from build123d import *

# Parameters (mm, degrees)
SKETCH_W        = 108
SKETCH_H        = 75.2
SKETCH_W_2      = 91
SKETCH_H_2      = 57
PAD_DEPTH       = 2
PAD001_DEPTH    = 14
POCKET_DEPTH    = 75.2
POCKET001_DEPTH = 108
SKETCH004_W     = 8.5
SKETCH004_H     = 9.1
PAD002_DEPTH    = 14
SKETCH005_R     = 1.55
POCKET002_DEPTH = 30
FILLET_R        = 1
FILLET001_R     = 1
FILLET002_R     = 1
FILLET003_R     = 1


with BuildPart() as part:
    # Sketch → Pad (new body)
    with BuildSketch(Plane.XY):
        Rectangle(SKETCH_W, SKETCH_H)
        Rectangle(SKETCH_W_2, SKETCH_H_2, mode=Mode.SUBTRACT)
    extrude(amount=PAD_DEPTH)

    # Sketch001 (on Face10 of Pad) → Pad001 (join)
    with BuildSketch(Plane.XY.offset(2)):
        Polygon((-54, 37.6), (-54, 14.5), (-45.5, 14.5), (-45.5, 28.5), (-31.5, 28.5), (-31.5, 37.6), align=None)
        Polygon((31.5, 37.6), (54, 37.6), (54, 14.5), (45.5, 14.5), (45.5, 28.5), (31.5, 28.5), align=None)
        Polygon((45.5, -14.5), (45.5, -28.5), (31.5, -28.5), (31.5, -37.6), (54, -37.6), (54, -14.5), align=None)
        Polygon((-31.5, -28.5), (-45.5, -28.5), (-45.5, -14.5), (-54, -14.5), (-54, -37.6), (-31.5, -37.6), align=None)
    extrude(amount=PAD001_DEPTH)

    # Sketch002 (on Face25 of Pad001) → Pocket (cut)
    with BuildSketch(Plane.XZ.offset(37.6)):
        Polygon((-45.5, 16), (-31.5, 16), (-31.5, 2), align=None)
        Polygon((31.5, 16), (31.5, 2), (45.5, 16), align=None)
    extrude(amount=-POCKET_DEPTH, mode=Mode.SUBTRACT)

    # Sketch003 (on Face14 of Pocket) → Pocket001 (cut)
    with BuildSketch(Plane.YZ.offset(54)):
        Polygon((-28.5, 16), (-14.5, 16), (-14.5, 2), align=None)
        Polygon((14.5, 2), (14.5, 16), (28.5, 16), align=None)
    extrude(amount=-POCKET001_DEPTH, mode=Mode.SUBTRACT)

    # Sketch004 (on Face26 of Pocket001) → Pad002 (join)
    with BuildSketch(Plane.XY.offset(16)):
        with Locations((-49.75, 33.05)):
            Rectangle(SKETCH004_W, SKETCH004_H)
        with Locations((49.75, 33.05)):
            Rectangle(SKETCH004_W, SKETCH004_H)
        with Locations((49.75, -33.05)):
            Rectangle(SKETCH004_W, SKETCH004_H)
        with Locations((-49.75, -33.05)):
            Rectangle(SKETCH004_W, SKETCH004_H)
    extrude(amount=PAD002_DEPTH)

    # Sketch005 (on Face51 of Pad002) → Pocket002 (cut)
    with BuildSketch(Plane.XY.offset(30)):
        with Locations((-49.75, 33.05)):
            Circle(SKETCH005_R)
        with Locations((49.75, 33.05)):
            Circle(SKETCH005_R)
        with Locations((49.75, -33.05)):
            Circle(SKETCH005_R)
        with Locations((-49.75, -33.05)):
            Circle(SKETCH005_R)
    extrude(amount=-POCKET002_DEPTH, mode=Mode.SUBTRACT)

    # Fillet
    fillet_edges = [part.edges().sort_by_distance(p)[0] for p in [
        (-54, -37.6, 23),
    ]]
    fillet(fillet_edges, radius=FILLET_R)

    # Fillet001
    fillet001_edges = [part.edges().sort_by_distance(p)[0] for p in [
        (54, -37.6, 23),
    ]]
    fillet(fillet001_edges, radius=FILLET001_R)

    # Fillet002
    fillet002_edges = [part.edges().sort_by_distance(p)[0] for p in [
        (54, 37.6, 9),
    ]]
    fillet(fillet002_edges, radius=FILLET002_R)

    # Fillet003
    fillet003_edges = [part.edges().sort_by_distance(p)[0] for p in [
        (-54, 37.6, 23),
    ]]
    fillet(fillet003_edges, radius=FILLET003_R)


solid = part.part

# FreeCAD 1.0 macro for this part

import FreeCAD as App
import Part
import Sketcher


def edges_at(feature, points):
    """Names of the edges that pass closest to the given points."""
    edges = feature.Shape.Edges
    near = lambda p: min(range(len(edges)), key=lambda i: edges[i].distToShape(Part.Vertex(*p))[0])
    return sorted({f"Edge{near(p) + 1}" for p in points})

doc = App.newDocument("Part")
body = doc.addObject("PartDesign::Body", "Body")

# Sketch on XY plane
sketch1 = body.newObject("Sketcher::SketchObject", "Sketch")
sketch1.AttachmentSupport = (doc.getObject("XY_Plane"), [""])
sketch1.MapMode = "FlatFace"
sketch1.addGeometry([
    Part.LineSegment(App.Vector(-54, 38, 0), App.Vector(-54, -38, 0)),  # 0
    Part.LineSegment(App.Vector(-54, -38, 0), App.Vector(54, -38, 0)),  # 1
    Part.LineSegment(App.Vector(54, -38, 0), App.Vector(54, 38, 0)),  # 2
    Part.LineSegment(App.Vector(54, 38, 0), App.Vector(-54, 38, 0)),  # 3
    Part.LineSegment(App.Vector(46, -28, 0), App.Vector(-46, -28, 0)),  # 4
    Part.LineSegment(App.Vector(-46, -28, 0), App.Vector(-46, 28, 0)),  # 5
    Part.LineSegment(App.Vector(-46, 28, 0), App.Vector(46, 28, 0)),  # 6
    Part.LineSegment(App.Vector(46, 28, 0), App.Vector(46, -28, 0)),  # 7
], False)
sketch1.addConstraint([
    Sketcher.Constraint("Coincident", 0, 2, 1, 1),
    Sketcher.Constraint("Coincident", 1, 2, 2, 1),
    Sketcher.Constraint("Coincident", 2, 2, 3, 1),
    Sketcher.Constraint("Coincident", 3, 2, 0, 1),
    Sketcher.Constraint("Coincident", 4, 2, 5, 1),
    Sketcher.Constraint("Coincident", 5, 2, 6, 1),
    Sketcher.Constraint("Coincident", 6, 2, 7, 1),
    Sketcher.Constraint("Coincident", 7, 2, 4, 1),
    Sketcher.Constraint("Vertical", 0),
    Sketcher.Constraint("Horizontal", 1),
    Sketcher.Constraint("Vertical", 2),
    Sketcher.Constraint("Horizontal", 3),
    Sketcher.Constraint("Horizontal", 4),
    Sketcher.Constraint("Vertical", 5),
    Sketcher.Constraint("Horizontal", 6),
    Sketcher.Constraint("Vertical", 7),
    Sketcher.Constraint("Symmetric", 0, 2, 2, 2, -1, 1),
    Sketcher.Constraint("Symmetric", 4, 2, 6, 2, -1, 1),
    Sketcher.Constraint("DistanceX", 1, 1, 1, 2, 108.0),
    Sketcher.Constraint("DistanceX", 4, 2, 4, 1, 91.0),
    Sketcher.Constraint("DistanceY", 5, 1, 5, 2, 57.0),
    Sketcher.Constraint("DistanceY", 0, 2, 0, 1, 75.2),
])
pad1 = body.newObject("PartDesign::Pad", "Pad")
pad1.Profile = sketch1
pad1.Length = 2

# Sketch on XY plane
sketch2 = body.newObject("Sketcher::SketchObject", "Sketch001")
sketch2.AttachmentSupport = (doc.getObject("XY_Plane"), [""])
sketch2.MapMode = "FlatFace"
sketch2.AttachmentOffset = App.Placement(App.Vector(0, 0, 2), App.Rotation())
sketch2.addGeometry([
    Part.LineSegment(App.Vector(-54, 38, 0), App.Vector(-54, 14, 0)),  # 0
    Part.LineSegment(App.Vector(-54, 14, 0), App.Vector(-46, 14, 0)),  # 1
    Part.LineSegment(App.Vector(-46, 14, 0), App.Vector(-46, 28, 0)),  # 2
    Part.LineSegment(App.Vector(-46, 28, 0), App.Vector(-32, 28, 0)),  # 3
    Part.LineSegment(App.Vector(-32, 28, 0), App.Vector(-32, 38, 0)),  # 4
    Part.LineSegment(App.Vector(-32, 38, 0), App.Vector(-54, 38, 0)),  # 5
    Part.LineSegment(App.Vector(54, 38, 0), App.Vector(32, 38, 0)),  # 6
    Part.LineSegment(App.Vector(32, 38, 0), App.Vector(32, 28, 0)),  # 7
    Part.LineSegment(App.Vector(32, 28, 0), App.Vector(46, 28, 0)),  # 8
    Part.LineSegment(App.Vector(46, 28, 0), App.Vector(46, 14, 0)),  # 9
    Part.LineSegment(App.Vector(46, 14, 0), App.Vector(54, 14, 0)),  # 10
    Part.LineSegment(App.Vector(54, 14, 0), App.Vector(54, 38, 0)),  # 11
    Part.LineSegment(App.Vector(46, -14, 0), App.Vector(46, -28, 0)),  # 12
    Part.LineSegment(App.Vector(46, -28, 0), App.Vector(32, -28, 0)),  # 13
    Part.LineSegment(App.Vector(32, -28, 0), App.Vector(32, -38, 0)),  # 14
    Part.LineSegment(App.Vector(32, -38, 0), App.Vector(54, -38, 0)),  # 15
    Part.LineSegment(App.Vector(54, -38, 0), App.Vector(54, -14, 0)),  # 16
    Part.LineSegment(App.Vector(54, -14, 0), App.Vector(46, -14, 0)),  # 17
    Part.LineSegment(App.Vector(-32, -28, 0), App.Vector(-46, -28, 0)),  # 18
    Part.LineSegment(App.Vector(-46, -28, 0), App.Vector(-46, -14, 0)),  # 19
    Part.LineSegment(App.Vector(-46, -14, 0), App.Vector(-54, -14, 0)),  # 20
    Part.LineSegment(App.Vector(-54, -14, 0), App.Vector(-54, -38, 0)),  # 21
    Part.LineSegment(App.Vector(-54, -38, 0), App.Vector(-32, -38, 0)),  # 22
    Part.LineSegment(App.Vector(-32, -38, 0), App.Vector(-32, -28, 0)),  # 23
], False)
sketch2.addConstraint([
    Sketcher.Constraint("Coincident", 0, 2, 1, 1),
    Sketcher.Constraint("Coincident", 1, 2, 2, 1),
    Sketcher.Constraint("Coincident", 2, 2, 3, 1),
    Sketcher.Constraint("Coincident", 3, 2, 4, 1),
    Sketcher.Constraint("Coincident", 4, 2, 5, 1),
    Sketcher.Constraint("Coincident", 5, 2, 0, 1),
    Sketcher.Constraint("Coincident", 6, 2, 7, 1),
    Sketcher.Constraint("Coincident", 7, 2, 8, 1),
    Sketcher.Constraint("Coincident", 8, 2, 9, 1),
    Sketcher.Constraint("Coincident", 9, 2, 10, 1),
    Sketcher.Constraint("Coincident", 10, 2, 11, 1),
    Sketcher.Constraint("Coincident", 11, 2, 6, 1),
    Sketcher.Constraint("Coincident", 12, 2, 13, 1),
    Sketcher.Constraint("Coincident", 13, 2, 14, 1),
    Sketcher.Constraint("Coincident", 14, 2, 15, 1),
    Sketcher.Constraint("Coincident", 15, 2, 16, 1),
    Sketcher.Constraint("Coincident", 16, 2, 17, 1),
    Sketcher.Constraint("Coincident", 17, 2, 12, 1),
    Sketcher.Constraint("Coincident", 18, 2, 19, 1),
    Sketcher.Constraint("Coincident", 19, 2, 20, 1),
    Sketcher.Constraint("Coincident", 20, 2, 21, 1),
    Sketcher.Constraint("Coincident", 21, 2, 22, 1),
    Sketcher.Constraint("Coincident", 22, 2, 23, 1),
    Sketcher.Constraint("Coincident", 23, 2, 18, 1),
    Sketcher.Constraint("Vertical", 0),
    Sketcher.Constraint("Horizontal", 1),
    Sketcher.Constraint("Vertical", 2),
    Sketcher.Constraint("Horizontal", 3),
    Sketcher.Constraint("Vertical", 4),
    Sketcher.Constraint("Horizontal", 5),
    Sketcher.Constraint("Horizontal", 6),
    Sketcher.Constraint("Vertical", 7),
    Sketcher.Constraint("Horizontal", 8),
    Sketcher.Constraint("Vertical", 9),
    Sketcher.Constraint("Horizontal", 10),
    Sketcher.Constraint("Vertical", 11),
    Sketcher.Constraint("Vertical", 12),
    Sketcher.Constraint("Horizontal", 13),
    Sketcher.Constraint("Vertical", 14),
    Sketcher.Constraint("Horizontal", 15),
    Sketcher.Constraint("Vertical", 16),
    Sketcher.Constraint("Horizontal", 17),
    Sketcher.Constraint("Horizontal", 18),
    Sketcher.Constraint("Vertical", 19),
    Sketcher.Constraint("Horizontal", 20),
    Sketcher.Constraint("Vertical", 21),
    Sketcher.Constraint("Horizontal", 22),
    Sketcher.Constraint("Vertical", 23),
    Sketcher.Constraint("Symmetric", 2, 2, 12, 2, -1, 1),
    Sketcher.Constraint("Symmetric", 4, 2, 14, 2, -1, 1),
    Sketcher.Constraint("Symmetric", 0, 2, 16, 2, -1, 1),
    Sketcher.Constraint("Symmetric", 8, 2, 18, 2, -1, 1),
    Sketcher.Constraint("Symmetric", 10, 2, 20, 2, -1, 1),
    Sketcher.Constraint("Symmetric", 6, 2, 22, 2, -1, 1),
    Sketcher.Constraint("Symmetric", 4, 2, 6, 2, -2),
    Sketcher.Constraint("Symmetric", 2, 2, 8, 2, -2),
    Sketcher.Constraint("Symmetric", 0, 2, 10, 2, -2),
    Sketcher.Constraint("Equal", 18, 2),
    Sketcher.Constraint("DistanceX", 3, 1, 3, 2, 14.0),
    Sketcher.Constraint("DistanceX", 1, 1, 1, 2, 8.5),
    Sketcher.Constraint("DistanceY", 0, 2, 0, 1, 23.1),
    Sketcher.Constraint("DistanceX", 0, 2, -1, 1, 54.0),
    Sketcher.Constraint("DistanceY", 12, 2, 9, 2, 43.0),
])
pad2 = body.newObject("PartDesign::Pad", "Pad001")
pad2.Profile = sketch2
pad2.Length = 14

# Sketch on XZ plane
sketch3 = body.newObject("Sketcher::SketchObject", "Sketch002")
sketch3.AttachmentSupport = (doc.getObject("XZ_Plane"), [""])
sketch3.MapMode = "FlatFace"
sketch3.AttachmentOffset = App.Placement(App.Vector(0, 0, 37.6), App.Rotation())
sketch3.addGeometry([
    Part.LineSegment(App.Vector(-32, 16, 0), App.Vector(-46, 16, 0)),  # 0
    Part.LineSegment(App.Vector(-46, 16, 0), App.Vector(-32, 2, 0)),  # 1
    Part.LineSegment(App.Vector(-32, 2, 0), App.Vector(-32, 16, 0)),  # 2
    Part.LineSegment(App.Vector(32, 16, 0), App.Vector(32, 2, 0)),  # 3
    Part.LineSegment(App.Vector(32, 2, 0), App.Vector(46, 16, 0)),  # 4
    Part.LineSegment(App.Vector(46, 16, 0), App.Vector(32, 16, 0)),  # 5
], False)
sketch3.addConstraint([
    Sketcher.Constraint("Coincident", 0, 2, 1, 1),
    Sketcher.Constraint("Coincident", 1, 2, 2, 1),
    Sketcher.Constraint("Coincident", 2, 2, 0, 1),
    Sketcher.Constraint("Coincident", 3, 2, 4, 1),
    Sketcher.Constraint("Coincident", 4, 2, 5, 1),
    Sketcher.Constraint("Coincident", 5, 2, 3, 1),
    Sketcher.Constraint("Horizontal", 0),
    Sketcher.Constraint("Vertical", 2),
    Sketcher.Constraint("Vertical", 3),
    Sketcher.Constraint("Horizontal", 5),
    Sketcher.Constraint("Symmetric", 1, 2, 3, 2, -2),
    Sketcher.Constraint("Symmetric", 0, 2, 4, 2, -2),
    Sketcher.Constraint("Perpendicular", 1, 4),
    Sketcher.Constraint("DistanceX", 0, 2, 0, 1, 14.0),
    Sketcher.Constraint("DistanceY", -1, 1, 0, 2, 16.0),
    Sketcher.Constraint("DistanceX", 1, 2, 3, 2, 63.0),
])
pocket1 = body.newObject("PartDesign::Pocket", "Pocket")
pocket1.Profile = sketch3
pocket1.Length = 75.2

# Sketch on YZ plane
sketch4 = body.newObject("Sketcher::SketchObject", "Sketch003")
sketch4.AttachmentSupport = (doc.getObject("YZ_Plane"), [""])
sketch4.MapMode = "FlatFace"
sketch4.AttachmentOffset = App.Placement(App.Vector(0, 0, 54), App.Rotation())
sketch4.addGeometry([
    Part.LineSegment(App.Vector(-14, 16, 0), App.Vector(-28, 16, 0)),  # 0
    Part.LineSegment(App.Vector(-28, 16, 0), App.Vector(-14, 2, 0)),  # 1
    Part.LineSegment(App.Vector(-14, 2, 0), App.Vector(-14, 16, 0)),  # 2
    Part.LineSegment(App.Vector(14, 16, 0), App.Vector(14, 2, 0)),  # 3
    Part.LineSegment(App.Vector(14, 2, 0), App.Vector(28, 16, 0)),  # 4
    Part.LineSegment(App.Vector(28, 16, 0), App.Vector(14, 16, 0)),  # 5
], False)
sketch4.addConstraint([
    Sketcher.Constraint("Coincident", 0, 2, 1, 1),
    Sketcher.Constraint("Coincident", 1, 2, 2, 1),
    Sketcher.Constraint("Coincident", 2, 2, 0, 1),
    Sketcher.Constraint("Coincident", 3, 2, 4, 1),
    Sketcher.Constraint("Coincident", 4, 2, 5, 1),
    Sketcher.Constraint("Coincident", 5, 2, 3, 1),
    Sketcher.Constraint("Horizontal", 0),
    Sketcher.Constraint("Vertical", 2),
    Sketcher.Constraint("Vertical", 3),
    Sketcher.Constraint("Horizontal", 5),
    Sketcher.Constraint("Symmetric", 1, 2, 3, 2, -2),
    Sketcher.Constraint("Symmetric", 0, 2, 4, 2, -2),
    Sketcher.Constraint("Perpendicular", 1, 4),
    Sketcher.Constraint("DistanceX", 0, 2, 0, 1, 14.0),
    Sketcher.Constraint("DistanceY", -1, 1, 0, 2, 16.0),
    Sketcher.Constraint("DistanceX", 1, 2, 3, 2, 29.0),
])
pocket2 = body.newObject("PartDesign::Pocket", "Pocket001")
pocket2.Profile = sketch4
pocket2.Length = 108

# Sketch on XY plane
sketch5 = body.newObject("Sketcher::SketchObject", "Sketch004")
sketch5.AttachmentSupport = (doc.getObject("XY_Plane"), [""])
sketch5.MapMode = "FlatFace"
sketch5.AttachmentOffset = App.Placement(App.Vector(0, 0, 16), App.Rotation())
sketch5.addGeometry([
    Part.LineSegment(App.Vector(-54, 38, 0), App.Vector(-54, 28, 0)),  # 0
    Part.LineSegment(App.Vector(-54, 28, 0), App.Vector(-46, 28, 0)),  # 1
    Part.LineSegment(App.Vector(-46, 28, 0), App.Vector(-46, 38, 0)),  # 2
    Part.LineSegment(App.Vector(-46, 38, 0), App.Vector(-54, 38, 0)),  # 3
    Part.LineSegment(App.Vector(46, 38, 0), App.Vector(46, 28, 0)),  # 4
    Part.LineSegment(App.Vector(46, 28, 0), App.Vector(54, 28, 0)),  # 5
    Part.LineSegment(App.Vector(54, 28, 0), App.Vector(54, 38, 0)),  # 6
    Part.LineSegment(App.Vector(54, 38, 0), App.Vector(46, 38, 0)),  # 7
    Part.LineSegment(App.Vector(46, -28, 0), App.Vector(46, -38, 0)),  # 8
    Part.LineSegment(App.Vector(46, -38, 0), App.Vector(54, -38, 0)),  # 9
    Part.LineSegment(App.Vector(54, -38, 0), App.Vector(54, -28, 0)),  # 10
    Part.LineSegment(App.Vector(54, -28, 0), App.Vector(46, -28, 0)),  # 11
    Part.LineSegment(App.Vector(-54, -28, 0), App.Vector(-54, -38, 0)),  # 12
    Part.LineSegment(App.Vector(-54, -38, 0), App.Vector(-46, -38, 0)),  # 13
    Part.LineSegment(App.Vector(-46, -38, 0), App.Vector(-46, -28, 0)),  # 14
    Part.LineSegment(App.Vector(-46, -28, 0), App.Vector(-54, -28, 0)),  # 15
], False)
sketch5.addConstraint([
    Sketcher.Constraint("Coincident", 0, 2, 1, 1),
    Sketcher.Constraint("Coincident", 1, 2, 2, 1),
    Sketcher.Constraint("Coincident", 2, 2, 3, 1),
    Sketcher.Constraint("Coincident", 3, 2, 0, 1),
    Sketcher.Constraint("Coincident", 4, 2, 5, 1),
    Sketcher.Constraint("Coincident", 5, 2, 6, 1),
    Sketcher.Constraint("Coincident", 6, 2, 7, 1),
    Sketcher.Constraint("Coincident", 7, 2, 4, 1),
    Sketcher.Constraint("Coincident", 8, 2, 9, 1),
    Sketcher.Constraint("Coincident", 9, 2, 10, 1),
    Sketcher.Constraint("Coincident", 10, 2, 11, 1),
    Sketcher.Constraint("Coincident", 11, 2, 8, 1),
    Sketcher.Constraint("Coincident", 12, 2, 13, 1),
    Sketcher.Constraint("Coincident", 13, 2, 14, 1),
    Sketcher.Constraint("Coincident", 14, 2, 15, 1),
    Sketcher.Constraint("Coincident", 15, 2, 12, 1),
    Sketcher.Constraint("Vertical", 0),
    Sketcher.Constraint("Horizontal", 1),
    Sketcher.Constraint("Vertical", 2),
    Sketcher.Constraint("Horizontal", 3),
    Sketcher.Constraint("Vertical", 4),
    Sketcher.Constraint("Horizontal", 5),
    Sketcher.Constraint("Vertical", 6),
    Sketcher.Constraint("Horizontal", 7),
    Sketcher.Constraint("Vertical", 8),
    Sketcher.Constraint("Horizontal", 9),
    Sketcher.Constraint("Vertical", 10),
    Sketcher.Constraint("Horizontal", 11),
    Sketcher.Constraint("Vertical", 12),
    Sketcher.Constraint("Horizontal", 13),
    Sketcher.Constraint("Vertical", 14),
    Sketcher.Constraint("Horizontal", 15),
    Sketcher.Constraint("Symmetric", 2, 2, 8, 2, -1, 1),
    Sketcher.Constraint("Symmetric", 0, 2, 10, 2, -1, 1),
    Sketcher.Constraint("Symmetric", 6, 2, 12, 2, -1, 1),
    Sketcher.Constraint("Symmetric", 4, 2, 14, 2, -1, 1),
    Sketcher.Constraint("Symmetric", 1, 2, 4, 2, -2),
    Sketcher.Constraint("Symmetric", 3, 2, 6, 2, -2),
    Sketcher.Constraint("DistanceX", 1, 1, 1, 2, 8.5),
    Sketcher.Constraint("DistanceY", 0, 2, 0, 1, 9.1),
    Sketcher.Constraint("DistanceX", 0, 2, -1, 1, 54.0),
    Sketcher.Constraint("DistanceY", 10, 2, 5, 2, 57.0),
])
pad3 = body.newObject("PartDesign::Pad", "Pad002")
pad3.Profile = sketch5
pad3.Length = 14

# Sketch on XY plane
sketch6 = body.newObject("Sketcher::SketchObject", "Sketch005")
sketch6.AttachmentSupport = (doc.getObject("XY_Plane"), [""])
sketch6.MapMode = "FlatFace"
sketch6.AttachmentOffset = App.Placement(App.Vector(0, 0, 30), App.Rotation())
sketch6.addGeometry([
    Part.Circle(App.Vector(-49.8, 33, 0), App.Vector(0, 0, 1), 1.6),
    Part.Circle(App.Vector(49.8, 33, 0), App.Vector(0, 0, 1), 1.6),
    Part.Circle(App.Vector(49.8, -33, 0), App.Vector(0, 0, 1), 1.6),
    Part.Circle(App.Vector(-49.8, -33, 0), App.Vector(0, 0, 1), 1.6),
], False)
sketch6.addConstraint([
    Sketcher.Constraint("Equal", 0, 1),
    Sketcher.Constraint("Equal", 1, 2),
    Sketcher.Constraint("Equal", 2, 3),
    Sketcher.Constraint("Symmetric", 0, 3, 2, 3, -1, 1),
    Sketcher.Constraint("Symmetric", 1, 3, 3, 3, -1, 1),
    Sketcher.Constraint("Symmetric", 0, 3, 1, 3, -2),
    Sketcher.Constraint("Diameter", 0, 3.1),
    Sketcher.Constraint("DistanceX", 0, 3, 1, 3, 99.5),
    Sketcher.Constraint("DistanceY", 2, 3, 1, 3, 66.1),
])
pocket3 = body.newObject("PartDesign::Pocket", "Pocket002")
pocket3.Profile = sketch6
pocket3.Length = 30
doc.recompute()

fillet = body.newObject("PartDesign::Fillet", "Fillet")
fillet.Base = (pocket3, edges_at(pocket3, [(-54, -37.6, 15)]))
fillet.Radius = 1
doc.recompute()

fillet2 = body.newObject("PartDesign::Fillet", "Fillet001")
fillet2.Base = (fillet, edges_at(fillet, [(54, -37.6, 15)]))
fillet2.Radius = 1
doc.recompute()

fillet3 = body.newObject("PartDesign::Fillet", "Fillet002")
fillet3.Base = (fillet2, edges_at(fillet2, [(54, 37.6, 15)]))
fillet3.Radius = 1
doc.recompute()

fillet4 = body.newObject("PartDesign::Fillet", "Fillet003")
fillet4.Base = (fillet3, edges_at(fillet3, [(-54, 37.6, 15)]))
fillet4.Radius = 1

doc.recompute()
